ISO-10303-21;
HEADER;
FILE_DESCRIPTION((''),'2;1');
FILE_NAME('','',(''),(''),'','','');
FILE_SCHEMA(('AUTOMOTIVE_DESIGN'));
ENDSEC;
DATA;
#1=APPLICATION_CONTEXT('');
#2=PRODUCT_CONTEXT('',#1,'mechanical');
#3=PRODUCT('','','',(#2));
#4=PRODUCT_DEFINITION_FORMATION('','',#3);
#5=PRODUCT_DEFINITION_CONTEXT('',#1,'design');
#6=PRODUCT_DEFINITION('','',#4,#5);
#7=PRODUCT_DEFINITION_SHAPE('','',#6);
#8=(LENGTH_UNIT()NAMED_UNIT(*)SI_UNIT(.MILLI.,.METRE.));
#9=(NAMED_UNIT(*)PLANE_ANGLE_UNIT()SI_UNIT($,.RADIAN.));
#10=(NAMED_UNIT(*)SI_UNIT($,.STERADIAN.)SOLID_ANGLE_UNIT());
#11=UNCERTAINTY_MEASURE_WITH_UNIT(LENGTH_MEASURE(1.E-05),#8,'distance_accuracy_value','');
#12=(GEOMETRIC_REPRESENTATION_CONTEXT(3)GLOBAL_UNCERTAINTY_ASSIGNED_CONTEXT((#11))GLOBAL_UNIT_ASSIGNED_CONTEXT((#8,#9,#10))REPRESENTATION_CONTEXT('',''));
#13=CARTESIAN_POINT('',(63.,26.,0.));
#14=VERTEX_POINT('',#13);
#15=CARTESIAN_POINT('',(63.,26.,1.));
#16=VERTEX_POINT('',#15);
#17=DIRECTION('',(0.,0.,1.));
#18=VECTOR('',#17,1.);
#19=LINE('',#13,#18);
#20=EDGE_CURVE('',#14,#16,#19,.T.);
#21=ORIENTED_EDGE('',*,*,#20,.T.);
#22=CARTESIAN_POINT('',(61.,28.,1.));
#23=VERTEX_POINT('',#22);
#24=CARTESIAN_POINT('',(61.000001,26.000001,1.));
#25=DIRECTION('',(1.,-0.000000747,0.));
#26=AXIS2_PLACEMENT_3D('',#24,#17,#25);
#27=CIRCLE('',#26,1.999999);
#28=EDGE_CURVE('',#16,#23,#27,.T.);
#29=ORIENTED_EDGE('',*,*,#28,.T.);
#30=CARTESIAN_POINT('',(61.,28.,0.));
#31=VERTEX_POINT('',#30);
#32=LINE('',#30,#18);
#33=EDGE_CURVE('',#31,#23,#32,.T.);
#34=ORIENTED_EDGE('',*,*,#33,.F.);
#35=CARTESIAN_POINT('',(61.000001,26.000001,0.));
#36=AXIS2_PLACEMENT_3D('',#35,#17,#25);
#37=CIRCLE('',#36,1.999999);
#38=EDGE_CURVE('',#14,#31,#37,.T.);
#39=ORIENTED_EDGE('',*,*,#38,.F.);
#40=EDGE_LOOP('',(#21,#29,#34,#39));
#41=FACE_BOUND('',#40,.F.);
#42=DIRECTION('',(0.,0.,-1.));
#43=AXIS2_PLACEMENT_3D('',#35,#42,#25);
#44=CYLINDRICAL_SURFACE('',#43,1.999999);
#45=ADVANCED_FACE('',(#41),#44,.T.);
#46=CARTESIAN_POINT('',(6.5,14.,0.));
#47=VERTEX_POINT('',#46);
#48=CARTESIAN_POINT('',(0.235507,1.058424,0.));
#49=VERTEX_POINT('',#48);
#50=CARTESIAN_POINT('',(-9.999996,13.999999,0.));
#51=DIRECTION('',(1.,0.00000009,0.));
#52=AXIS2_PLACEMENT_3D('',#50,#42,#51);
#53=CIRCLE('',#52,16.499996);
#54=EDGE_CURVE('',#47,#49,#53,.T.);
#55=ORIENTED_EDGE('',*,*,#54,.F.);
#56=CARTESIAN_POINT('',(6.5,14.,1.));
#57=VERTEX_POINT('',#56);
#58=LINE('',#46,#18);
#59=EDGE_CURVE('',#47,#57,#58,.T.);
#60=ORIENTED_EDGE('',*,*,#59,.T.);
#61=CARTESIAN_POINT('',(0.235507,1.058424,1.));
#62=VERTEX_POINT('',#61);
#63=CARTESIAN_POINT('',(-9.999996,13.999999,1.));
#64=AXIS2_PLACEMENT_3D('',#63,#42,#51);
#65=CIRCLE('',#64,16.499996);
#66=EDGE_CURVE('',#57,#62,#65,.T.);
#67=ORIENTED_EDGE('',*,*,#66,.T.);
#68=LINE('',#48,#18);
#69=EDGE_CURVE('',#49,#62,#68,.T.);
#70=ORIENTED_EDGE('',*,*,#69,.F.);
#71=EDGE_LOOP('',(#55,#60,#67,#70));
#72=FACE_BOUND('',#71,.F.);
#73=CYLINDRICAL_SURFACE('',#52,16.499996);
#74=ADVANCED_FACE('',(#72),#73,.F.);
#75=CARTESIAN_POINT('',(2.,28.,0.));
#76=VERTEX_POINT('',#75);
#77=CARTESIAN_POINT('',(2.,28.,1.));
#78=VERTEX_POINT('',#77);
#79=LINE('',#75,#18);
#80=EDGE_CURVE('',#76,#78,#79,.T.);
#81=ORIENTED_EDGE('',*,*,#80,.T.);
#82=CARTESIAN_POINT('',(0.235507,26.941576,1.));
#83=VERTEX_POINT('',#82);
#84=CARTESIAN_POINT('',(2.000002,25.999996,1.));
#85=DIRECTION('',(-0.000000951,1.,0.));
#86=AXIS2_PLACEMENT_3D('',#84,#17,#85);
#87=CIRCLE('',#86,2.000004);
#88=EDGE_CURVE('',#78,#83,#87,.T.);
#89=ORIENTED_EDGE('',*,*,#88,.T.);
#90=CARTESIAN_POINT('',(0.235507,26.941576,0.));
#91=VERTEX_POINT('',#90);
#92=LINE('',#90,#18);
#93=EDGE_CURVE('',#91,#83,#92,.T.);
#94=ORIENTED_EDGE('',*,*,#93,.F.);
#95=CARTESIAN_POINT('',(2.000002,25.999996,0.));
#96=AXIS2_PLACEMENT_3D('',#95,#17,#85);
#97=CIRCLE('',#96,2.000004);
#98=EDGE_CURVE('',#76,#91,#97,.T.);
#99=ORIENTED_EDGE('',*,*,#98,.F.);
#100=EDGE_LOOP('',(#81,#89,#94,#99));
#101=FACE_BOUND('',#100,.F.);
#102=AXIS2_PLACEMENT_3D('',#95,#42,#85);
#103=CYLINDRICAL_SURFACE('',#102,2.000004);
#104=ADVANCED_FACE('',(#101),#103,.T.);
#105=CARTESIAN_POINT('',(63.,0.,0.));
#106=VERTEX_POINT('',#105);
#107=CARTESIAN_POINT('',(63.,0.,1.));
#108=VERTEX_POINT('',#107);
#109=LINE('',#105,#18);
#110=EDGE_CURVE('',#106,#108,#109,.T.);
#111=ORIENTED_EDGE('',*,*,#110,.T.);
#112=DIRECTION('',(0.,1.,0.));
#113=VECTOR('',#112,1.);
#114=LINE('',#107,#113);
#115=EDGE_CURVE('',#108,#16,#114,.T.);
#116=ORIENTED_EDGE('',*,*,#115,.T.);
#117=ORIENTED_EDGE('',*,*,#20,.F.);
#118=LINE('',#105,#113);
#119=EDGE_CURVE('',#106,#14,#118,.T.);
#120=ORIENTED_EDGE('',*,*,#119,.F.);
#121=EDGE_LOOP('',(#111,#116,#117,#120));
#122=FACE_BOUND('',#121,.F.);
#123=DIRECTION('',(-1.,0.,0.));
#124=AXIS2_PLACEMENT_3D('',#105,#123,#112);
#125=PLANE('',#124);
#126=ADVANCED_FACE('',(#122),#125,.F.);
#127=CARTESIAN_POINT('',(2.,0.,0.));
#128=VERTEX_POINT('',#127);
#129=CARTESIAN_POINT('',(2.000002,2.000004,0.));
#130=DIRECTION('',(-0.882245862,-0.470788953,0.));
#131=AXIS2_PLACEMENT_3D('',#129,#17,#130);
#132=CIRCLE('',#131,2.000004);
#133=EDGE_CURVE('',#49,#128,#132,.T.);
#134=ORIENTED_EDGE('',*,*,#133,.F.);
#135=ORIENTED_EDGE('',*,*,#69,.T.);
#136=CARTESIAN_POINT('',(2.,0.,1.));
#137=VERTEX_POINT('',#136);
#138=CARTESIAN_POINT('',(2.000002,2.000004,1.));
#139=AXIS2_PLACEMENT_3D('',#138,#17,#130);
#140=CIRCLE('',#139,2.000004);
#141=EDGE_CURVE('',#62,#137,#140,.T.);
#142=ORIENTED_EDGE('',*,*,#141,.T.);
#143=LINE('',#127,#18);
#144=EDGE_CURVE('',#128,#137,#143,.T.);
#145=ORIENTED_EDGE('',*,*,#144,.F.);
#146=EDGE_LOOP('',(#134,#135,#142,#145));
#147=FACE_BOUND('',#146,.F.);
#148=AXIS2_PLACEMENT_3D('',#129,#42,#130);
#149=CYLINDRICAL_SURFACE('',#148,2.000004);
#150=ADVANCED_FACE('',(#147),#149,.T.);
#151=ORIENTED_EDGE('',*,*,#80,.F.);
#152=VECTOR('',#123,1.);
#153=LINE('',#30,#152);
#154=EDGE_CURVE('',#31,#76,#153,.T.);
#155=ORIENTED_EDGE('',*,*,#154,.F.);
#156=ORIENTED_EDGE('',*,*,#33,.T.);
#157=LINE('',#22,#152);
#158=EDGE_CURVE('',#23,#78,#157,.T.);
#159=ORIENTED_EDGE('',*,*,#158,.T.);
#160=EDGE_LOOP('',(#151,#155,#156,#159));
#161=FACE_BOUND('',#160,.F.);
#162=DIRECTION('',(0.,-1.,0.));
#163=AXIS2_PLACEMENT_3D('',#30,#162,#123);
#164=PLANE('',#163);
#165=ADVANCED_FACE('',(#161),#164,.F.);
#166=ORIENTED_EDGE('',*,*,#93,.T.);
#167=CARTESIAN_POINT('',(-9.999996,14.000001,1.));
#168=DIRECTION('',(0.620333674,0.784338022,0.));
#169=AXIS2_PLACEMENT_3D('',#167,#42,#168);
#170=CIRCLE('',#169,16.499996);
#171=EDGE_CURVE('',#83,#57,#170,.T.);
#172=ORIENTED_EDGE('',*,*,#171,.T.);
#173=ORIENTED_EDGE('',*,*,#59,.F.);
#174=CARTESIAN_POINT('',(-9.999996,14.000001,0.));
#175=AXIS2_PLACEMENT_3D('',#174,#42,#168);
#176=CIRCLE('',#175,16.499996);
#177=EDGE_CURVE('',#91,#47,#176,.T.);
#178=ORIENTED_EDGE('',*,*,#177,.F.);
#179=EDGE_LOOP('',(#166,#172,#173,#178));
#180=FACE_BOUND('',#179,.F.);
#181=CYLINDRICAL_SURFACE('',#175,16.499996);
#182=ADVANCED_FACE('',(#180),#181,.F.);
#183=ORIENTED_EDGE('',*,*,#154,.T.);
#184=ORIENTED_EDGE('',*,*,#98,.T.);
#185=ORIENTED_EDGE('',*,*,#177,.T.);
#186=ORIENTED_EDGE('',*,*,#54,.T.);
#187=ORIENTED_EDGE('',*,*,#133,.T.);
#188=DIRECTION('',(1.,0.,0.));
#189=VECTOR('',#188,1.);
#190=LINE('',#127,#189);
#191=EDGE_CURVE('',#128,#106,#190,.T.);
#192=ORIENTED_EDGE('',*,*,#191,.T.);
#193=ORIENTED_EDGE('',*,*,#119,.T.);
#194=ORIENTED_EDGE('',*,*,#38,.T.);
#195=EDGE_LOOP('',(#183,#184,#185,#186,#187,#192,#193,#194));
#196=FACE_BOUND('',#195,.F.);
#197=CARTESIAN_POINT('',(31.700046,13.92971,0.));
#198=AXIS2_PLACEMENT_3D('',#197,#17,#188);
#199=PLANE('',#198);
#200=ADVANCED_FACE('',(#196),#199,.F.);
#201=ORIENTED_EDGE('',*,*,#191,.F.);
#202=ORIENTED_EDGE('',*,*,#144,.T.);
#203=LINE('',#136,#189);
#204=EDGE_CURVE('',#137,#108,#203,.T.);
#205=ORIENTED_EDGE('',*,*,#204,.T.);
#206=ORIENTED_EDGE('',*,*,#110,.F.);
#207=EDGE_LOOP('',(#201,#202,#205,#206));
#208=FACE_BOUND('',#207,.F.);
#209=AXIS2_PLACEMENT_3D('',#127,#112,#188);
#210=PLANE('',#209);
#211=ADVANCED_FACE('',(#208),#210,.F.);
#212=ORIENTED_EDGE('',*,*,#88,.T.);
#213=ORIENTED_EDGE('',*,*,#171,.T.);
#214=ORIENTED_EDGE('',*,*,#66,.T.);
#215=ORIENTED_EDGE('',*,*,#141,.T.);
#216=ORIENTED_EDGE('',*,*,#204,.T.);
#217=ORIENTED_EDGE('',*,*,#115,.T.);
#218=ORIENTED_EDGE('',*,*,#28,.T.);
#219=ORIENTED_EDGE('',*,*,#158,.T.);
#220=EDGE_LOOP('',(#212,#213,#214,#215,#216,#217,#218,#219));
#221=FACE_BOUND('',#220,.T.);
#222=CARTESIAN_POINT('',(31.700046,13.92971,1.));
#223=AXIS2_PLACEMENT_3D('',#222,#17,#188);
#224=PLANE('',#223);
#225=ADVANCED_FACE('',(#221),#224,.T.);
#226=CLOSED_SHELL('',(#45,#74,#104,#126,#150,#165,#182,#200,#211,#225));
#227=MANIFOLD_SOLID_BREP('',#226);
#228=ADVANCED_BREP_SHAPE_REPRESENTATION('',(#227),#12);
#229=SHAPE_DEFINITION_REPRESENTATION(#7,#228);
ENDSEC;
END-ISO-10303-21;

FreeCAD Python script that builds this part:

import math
import FreeCAD as App
import Part
import Sketcher
from FreeCAD import Vector
Q = App.Units.Quantity

doc = App.newDocument("Part")
body = doc.addObject("PartDesign::Body", "Body")

sketch1 = body.newObject("Sketcher::SketchObject", "Sketch")
sketch1.AttachmentSupport = (doc.getObject("XY_Plane"), [""])
sketch1.MapMode = "FlatFace"
sketch1.addGeometry([
    Part.ArcOfCircle(Part.Circle(Vector(2, 2, 0), Vector(0, 0, 1), 2), math.radians(-152), math.radians(-90)),
    Part.LineSegment(Vector(2, 0, 0), Vector(63, 0, 0)),
    Part.LineSegment(Vector(63, 0, 0), Vector(63, 26, 0)),
    Part.ArcOfCircle(Part.Circle(Vector(61, 26, 0), Vector(0, 0, 1), 2), math.radians(0), math.radians(90)),
    Part.LineSegment(Vector(61, 28, 0), Vector(2, 28, 0)),
    Part.ArcOfCircle(Part.Circle(Vector(2, 26, 0), Vector(0, 0, 1), 2), math.radians(90), math.radians(152)),
    Part.ArcOfCircle(Part.Circle(Vector(-10, 14, 0), Vector(0, 0, 1), 16.5), math.radians(0), math.radians(52)),
    Part.ArcOfCircle(Part.Circle(Vector(-10, 14, 0), Vector(0, 0, 1), 16.5), math.radians(-52), math.radians(0)),
], False)
sketch1.addConstraint([
    Sketcher.Constraint("Tangent", 0, 2, 1, 1),
    Sketcher.Constraint("Coincident", 1, 2, 2, 1),
    Sketcher.Constraint("Tangent", 2, 2, 3, 1),
    Sketcher.Constraint("Tangent", 3, 2, 4, 1),
    Sketcher.Constraint("Tangent", 4, 2, 5, 1),
    Sketcher.Constraint("Coincident", 5, 2, 6, 2),
    Sketcher.Constraint("Tangent", 6, 1, 7, 2),
    Sketcher.Constraint("Coincident", 7, 1, 0, 1),
    Sketcher.Constraint("Horizontal", 1),
    Sketcher.Constraint("Vertical", 2),
    Sketcher.Constraint("Horizontal", 4),
    Sketcher.Constraint("Equal", 0, 5),
    Sketcher.Constraint("Equal", 6, 7),
    Sketcher.Constraint("PointOnObject", 0, 2, -1),
    Sketcher.Constraint("Horizontal", 7, 3, 6, 1),
    Sketcher.Constraint("Vertical", 0, 3, 5, 3),
    Sketcher.Constraint("Vertical", 5, 2, 7, 1),
    Sketcher.Constraint("Radius", 3, Q("1.999999 mm")),
    Sketcher.Constraint("DistanceX", 1, 1, 1, 2, Q("61 mm")),
    Sketcher.Constraint("DistanceY", 2, 1, 2, 2, Q("26 mm")),
    Sketcher.Constraint("DistanceX", -1, 1, 0, 3, Q("2.000002 mm")),
    Sketcher.Constraint("DistanceX", 6, 3, 5, 3, Q("11.999998 mm")),
    Sketcher.Constraint("DistanceX", -1, 1, 6, 1, Q("6.5 mm")),
    Sketcher.Constraint("Radius", 0, Q("2.000004 mm")),
])
pad1 = body.newObject("PartDesign::Pad", "Pad")
pad1.Profile = sketch1
pad1.Length = 1

doc.recompute()
